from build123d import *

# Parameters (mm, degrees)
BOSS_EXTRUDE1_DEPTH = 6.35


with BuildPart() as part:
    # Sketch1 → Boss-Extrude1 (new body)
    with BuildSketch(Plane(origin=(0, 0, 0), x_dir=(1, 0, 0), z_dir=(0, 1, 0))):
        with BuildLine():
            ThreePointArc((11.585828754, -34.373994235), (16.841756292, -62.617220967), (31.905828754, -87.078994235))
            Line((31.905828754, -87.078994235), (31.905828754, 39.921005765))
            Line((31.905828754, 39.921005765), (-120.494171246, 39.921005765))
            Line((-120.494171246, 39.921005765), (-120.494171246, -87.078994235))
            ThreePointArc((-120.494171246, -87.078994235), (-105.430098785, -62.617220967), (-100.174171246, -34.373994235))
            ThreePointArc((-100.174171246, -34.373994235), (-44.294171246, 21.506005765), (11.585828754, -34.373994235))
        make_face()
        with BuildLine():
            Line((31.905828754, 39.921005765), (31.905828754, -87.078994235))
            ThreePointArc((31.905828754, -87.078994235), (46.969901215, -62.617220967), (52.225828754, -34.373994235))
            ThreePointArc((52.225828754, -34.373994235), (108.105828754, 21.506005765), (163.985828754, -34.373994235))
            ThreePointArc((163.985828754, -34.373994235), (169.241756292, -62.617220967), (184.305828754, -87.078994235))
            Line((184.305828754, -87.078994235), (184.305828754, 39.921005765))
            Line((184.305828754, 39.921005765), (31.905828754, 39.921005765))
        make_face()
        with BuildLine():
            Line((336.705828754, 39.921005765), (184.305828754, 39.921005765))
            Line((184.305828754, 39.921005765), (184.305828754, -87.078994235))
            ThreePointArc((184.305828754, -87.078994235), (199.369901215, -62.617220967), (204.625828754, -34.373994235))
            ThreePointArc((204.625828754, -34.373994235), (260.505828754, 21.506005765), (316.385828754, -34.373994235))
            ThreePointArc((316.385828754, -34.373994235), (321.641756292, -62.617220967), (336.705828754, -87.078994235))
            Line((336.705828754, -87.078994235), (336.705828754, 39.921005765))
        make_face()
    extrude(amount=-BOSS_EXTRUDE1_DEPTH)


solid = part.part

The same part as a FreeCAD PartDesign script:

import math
import FreeCAD as App
import Part
import Sketcher
Q = App.Units.Quantity

doc = App.newDocument("Part")
body = doc.addObject("PartDesign::Body", "Body")

# Sketch on XZ plane
sketch1 = body.newObject("Sketcher::SketchObject", "Sketch")
sketch1.AttachmentSupport = (doc.getObject("XZ_Plane"), [""])
sketch1.MapMode = "FlatFace"
sketch1.addGeometry([
    Part.ArcOfCircle(Part.Circle(App.Vector(90.097626, 34.373994, 0), App.Vector(0, 0, 1), 78.511797), math.radians(137.832491), math.radians(180)),  # 0
    Part.ArcOfCircle(Part.Circle(App.Vector(-26.285968, 34.373994, 0), App.Vector(0, 0, 1), 78.511797), math.radians(0), math.radians(42.167509)),  # 1
    Part.ArcOfCircle(Part.Circle(App.Vector(108.105829, 34.373994, 0), App.Vector(0, 0, 1), 55.88), math.radians(180), math.radians(360)),  # 2
    Part.ArcOfCircle(Part.Circle(App.Vector(242.497626, 34.373994, 0), App.Vector(0, 0, 1), 78.511797), math.radians(137.832491), math.radians(180)),  # 3
    Part.ArcOfCircle(Part.Circle(App.Vector(126.114032, 34.373994, 0), App.Vector(0, 0, 1), 78.511797), math.radians(0), math.radians(42.167509)),  # 4
    Part.ArcOfCircle(Part.Circle(App.Vector(260.505829, 34.373994, 0), App.Vector(0, 0, 1), 55.88), math.radians(180), math.radians(360)),  # 5
    Part.ArcOfCircle(Part.Circle(App.Vector(394.897626, 34.373994, 0), App.Vector(0, 0, 1), 78.511797), math.radians(137.832491), math.radians(180)),  # 6
    Part.LineSegment(App.Vector(336.705829, 87.078994, 0), App.Vector(336.705829, -39.921006, 0)),  # 7
    Part.LineSegment(App.Vector(336.705829, -39.921006, 0), App.Vector(-120.494171, -39.921006, 0)),  # 8
    Part.LineSegment(App.Vector(-120.494171, -39.921006, 0), App.Vector(-120.494171, 87.078994, 0)),  # 9
    Part.ArcOfCircle(Part.Circle(App.Vector(-178.685968, 34.373994, 0), App.Vector(0, 0, 1), 78.511797), math.radians(0), math.radians(42.167509)),  # 10
    Part.ArcOfCircle(Part.Circle(App.Vector(-44.294171, 34.373994, 0), App.Vector(0, 0, 1), 55.88), math.radians(180), math.radians(360)),  # 11
], False)
sketch1.addConstraint([
    Sketcher.Constraint("Coincident", 0, 1, 1, 2),
    Sketcher.Constraint("Tangent", 1, 1, 2, 1),
    Sketcher.Constraint("Tangent", 2, 2, 3, 2),
    Sketcher.Constraint("Coincident", 3, 1, 4, 2),
    Sketcher.Constraint("Tangent", 4, 1, 5, 1),
    Sketcher.Constraint("Tangent", 5, 2, 6, 2),
    Sketcher.Constraint("Coincident", 6, 1, 7, 1),
    Sketcher.Constraint("Coincident", 7, 2, 8, 1),
    Sketcher.Constraint("Coincident", 8, 2, 9, 1),
    Sketcher.Constraint("Coincident", 9, 2, 10, 2),
    Sketcher.Constraint("Tangent", 10, 1, 11, 1),
    Sketcher.Constraint("Tangent", 11, 2, 0, 2),
    Sketcher.Constraint("Vertical", 7),
    Sketcher.Constraint("Horizontal", 8),
    Sketcher.Constraint("Vertical", 9),
    Sketcher.Constraint("Equal", 0, 1),
    Sketcher.Constraint("Equal", 1, 3),
    Sketcher.Constraint("Equal", 3, 4),
    Sketcher.Constraint("Equal", 2, 5),
    Sketcher.Constraint("Equal", 4, 6),
    Sketcher.Constraint("Equal", 6, 10),
    Sketcher.Constraint("Equal", 5, 11),
    Sketcher.Constraint("Horizontal", 0, 3, 1, 3),
    Sketcher.Constraint("Horizontal", 1, 3, 2, 3),
    Sketcher.Constraint("Horizontal", 2, 3, 3, 3),
    Sketcher.Constraint("Horizontal", 3, 3, 4, 3),
    Sketcher.Constraint("Horizontal", 4, 3, 5, 3),
    Sketcher.Constraint("Horizontal", 5, 3, 6, 3),
    Sketcher.Constraint("Horizontal", 6, 3, 10, 3),
    Sketcher.Constraint("Horizontal", 10, 3, 11, 3),
    Sketcher.Constraint("Horizontal", 0, 1, 3, 1),
    Sketcher.Constraint("Horizontal", 3, 1, 6, 1),
    Sketcher.Constraint("Horizontal", 6, 1, 9, 2),
    Sketcher.Constraint("Radius", 2, Q("2.2 in")),
    Sketcher.Constraint("DistanceX", 8, 2, 8, 1, Q("18 in")),
    Sketcher.Constraint("DistanceY", 7, 2, 7, 1, Q("5 in")),
    Sketcher.Constraint("DistanceY", 7, 2, 6, 3, Q("2.925 in")),
    Sketcher.Constraint("DistanceX", 1, 3, -1, 1, 26.285968),
    Sketcher.Constraint("DistanceY", -1, 1, 0, 3, 34.373994),
])
pad1 = body.newObject("PartDesign::Pad", "Pad")
pad1.Profile = sketch1
pad1.Length = Q("0.25 in")

doc.recompute()
